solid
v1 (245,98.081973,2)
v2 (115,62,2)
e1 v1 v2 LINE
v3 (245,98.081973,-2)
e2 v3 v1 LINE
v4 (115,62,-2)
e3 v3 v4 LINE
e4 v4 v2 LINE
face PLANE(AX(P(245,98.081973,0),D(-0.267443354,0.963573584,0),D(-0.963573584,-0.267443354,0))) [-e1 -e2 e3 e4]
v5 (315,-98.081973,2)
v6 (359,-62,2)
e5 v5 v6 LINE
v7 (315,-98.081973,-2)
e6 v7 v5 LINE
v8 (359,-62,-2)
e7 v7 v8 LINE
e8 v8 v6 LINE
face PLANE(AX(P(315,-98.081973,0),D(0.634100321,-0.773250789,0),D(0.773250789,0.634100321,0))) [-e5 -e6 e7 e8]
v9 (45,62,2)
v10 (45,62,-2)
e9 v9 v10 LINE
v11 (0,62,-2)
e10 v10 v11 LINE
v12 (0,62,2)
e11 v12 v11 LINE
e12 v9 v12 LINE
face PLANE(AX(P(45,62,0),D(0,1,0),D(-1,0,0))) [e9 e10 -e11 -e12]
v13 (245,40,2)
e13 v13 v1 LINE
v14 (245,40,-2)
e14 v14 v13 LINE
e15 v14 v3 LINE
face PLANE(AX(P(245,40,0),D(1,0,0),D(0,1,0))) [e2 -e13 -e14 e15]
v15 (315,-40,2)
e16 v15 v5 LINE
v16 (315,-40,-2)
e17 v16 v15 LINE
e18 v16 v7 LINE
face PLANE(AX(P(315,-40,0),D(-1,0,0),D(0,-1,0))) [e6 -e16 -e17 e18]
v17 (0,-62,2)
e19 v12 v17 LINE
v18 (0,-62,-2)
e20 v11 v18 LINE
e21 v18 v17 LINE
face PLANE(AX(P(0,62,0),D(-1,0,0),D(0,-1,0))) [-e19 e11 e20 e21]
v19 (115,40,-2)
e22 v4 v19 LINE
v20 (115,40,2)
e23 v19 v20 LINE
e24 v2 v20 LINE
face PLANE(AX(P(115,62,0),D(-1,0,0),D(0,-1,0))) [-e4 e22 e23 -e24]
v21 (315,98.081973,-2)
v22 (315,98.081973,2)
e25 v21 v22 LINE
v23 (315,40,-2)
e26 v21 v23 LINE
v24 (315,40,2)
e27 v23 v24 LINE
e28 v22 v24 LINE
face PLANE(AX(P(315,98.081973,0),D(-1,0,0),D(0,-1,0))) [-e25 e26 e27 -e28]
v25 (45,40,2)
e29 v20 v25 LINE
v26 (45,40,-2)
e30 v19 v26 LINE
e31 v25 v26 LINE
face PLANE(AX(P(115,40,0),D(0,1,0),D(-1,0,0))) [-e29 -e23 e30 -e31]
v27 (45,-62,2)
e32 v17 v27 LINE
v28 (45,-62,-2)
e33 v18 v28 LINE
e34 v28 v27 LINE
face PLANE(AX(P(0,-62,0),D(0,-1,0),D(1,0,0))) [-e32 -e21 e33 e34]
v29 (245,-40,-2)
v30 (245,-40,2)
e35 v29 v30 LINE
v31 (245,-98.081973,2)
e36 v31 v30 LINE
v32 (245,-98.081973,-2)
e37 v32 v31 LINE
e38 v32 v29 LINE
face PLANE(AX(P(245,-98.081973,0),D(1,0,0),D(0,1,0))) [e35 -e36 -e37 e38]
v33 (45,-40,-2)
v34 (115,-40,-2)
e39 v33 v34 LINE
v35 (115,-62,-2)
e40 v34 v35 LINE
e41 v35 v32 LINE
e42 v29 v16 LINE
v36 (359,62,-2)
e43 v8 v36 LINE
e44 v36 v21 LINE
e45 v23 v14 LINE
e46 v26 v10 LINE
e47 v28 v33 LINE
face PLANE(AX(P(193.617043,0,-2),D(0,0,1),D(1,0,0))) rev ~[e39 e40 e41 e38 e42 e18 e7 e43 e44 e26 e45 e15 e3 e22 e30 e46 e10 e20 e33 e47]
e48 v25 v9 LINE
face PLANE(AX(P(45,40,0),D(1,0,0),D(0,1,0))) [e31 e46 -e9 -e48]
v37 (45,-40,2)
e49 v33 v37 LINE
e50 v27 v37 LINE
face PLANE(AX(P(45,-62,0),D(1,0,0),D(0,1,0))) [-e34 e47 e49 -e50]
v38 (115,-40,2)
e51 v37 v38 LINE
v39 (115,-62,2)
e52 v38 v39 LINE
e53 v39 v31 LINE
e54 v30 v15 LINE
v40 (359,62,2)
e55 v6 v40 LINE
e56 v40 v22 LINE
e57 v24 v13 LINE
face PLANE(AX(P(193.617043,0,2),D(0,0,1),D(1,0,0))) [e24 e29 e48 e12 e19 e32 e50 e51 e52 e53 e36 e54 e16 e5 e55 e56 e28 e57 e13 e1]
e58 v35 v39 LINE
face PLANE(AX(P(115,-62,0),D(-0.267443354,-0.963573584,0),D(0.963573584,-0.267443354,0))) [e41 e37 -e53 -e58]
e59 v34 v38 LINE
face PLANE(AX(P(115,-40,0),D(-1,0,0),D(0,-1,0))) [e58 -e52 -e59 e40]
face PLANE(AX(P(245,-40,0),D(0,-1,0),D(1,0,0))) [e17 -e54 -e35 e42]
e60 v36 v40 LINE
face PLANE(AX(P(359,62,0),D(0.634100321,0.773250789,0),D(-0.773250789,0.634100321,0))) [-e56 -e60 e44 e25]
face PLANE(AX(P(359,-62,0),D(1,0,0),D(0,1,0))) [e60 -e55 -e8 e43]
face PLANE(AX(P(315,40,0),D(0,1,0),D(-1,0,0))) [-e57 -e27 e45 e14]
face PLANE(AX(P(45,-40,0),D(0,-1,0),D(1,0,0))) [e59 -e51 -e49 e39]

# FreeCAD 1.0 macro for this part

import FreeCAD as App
import Part
import Sketcher

doc = App.newDocument("Part")
body = doc.addObject("PartDesign::Body", "Body")

# Sketch on XY plane
sketch1 = doc.addObject("Sketcher::SketchObject", "Sketch")
body.addObject(sketch1)
sketch1.AttachmentSupport = (doc.XY_Plane, [""])
sketch1.MapMode = "FlatFace"
sketch1.addGeometry([
    Part.LineSegment(App.Vector(0, 62, 0), App.Vector(0, -62, 0)),  # 0
    Part.LineSegment(App.Vector(0, -62, 0), App.Vector(45, -62, 0)),  # 1
    Part.LineSegment(App.Vector(45, -62, 0), App.Vector(45, -40, 0)),  # 2
    Part.LineSegment(App.Vector(45, -40, 0), App.Vector(115, -40, 0)),  # 3
    Part.LineSegment(App.Vector(115, -40, 0), App.Vector(115, -62, 0)),  # 4
    Part.LineSegment(App.Vector(115, -62, 0), App.Vector(245, -98.081973, 0)),  # 5
    Part.LineSegment(App.Vector(245, -98.081973, 0), App.Vector(245, -40, 0)),  # 6
    Part.LineSegment(App.Vector(245, -40, 0), App.Vector(315, -40, 0)),  # 7
    Part.LineSegment(App.Vector(315, -40, 0), App.Vector(315, -98.081973, 0)),  # 8
    Part.LineSegment(App.Vector(315, -98.081973, 0), App.Vector(359, -62, 0)),  # 9
    Part.LineSegment(App.Vector(359, -62, 0), App.Vector(359, 62, 0)),  # 10
    Part.LineSegment(App.Vector(359, 62, 0), App.Vector(315, 98.081973, 0)),  # 11
    Part.LineSegment(App.Vector(315, 98.081973, 0), App.Vector(315, 40, 0)),  # 12
    Part.LineSegment(App.Vector(315, 40, 0), App.Vector(245, 40, 0)),  # 13
    Part.LineSegment(App.Vector(245, 40, 0), App.Vector(245, 98.081973, 0)),  # 14
    Part.LineSegment(App.Vector(245, 98.081973, 0), App.Vector(115, 62, 0)),  # 15
    Part.LineSegment(App.Vector(115, 62, 0), App.Vector(115, 40, 0)),  # 16
    Part.LineSegment(App.Vector(115, 40, 0), App.Vector(45, 40, 0)),  # 17
    Part.LineSegment(App.Vector(45, 40, 0), App.Vector(45, 62, 0)),  # 18
    Part.LineSegment(App.Vector(45, 62, 0), App.Vector(0, 62, 0)),  # 19
], False)
sketch1.addConstraint([
    Sketcher.Constraint("Coincident", 0, 2, 1, 1),
    Sketcher.Constraint("Coincident", 1, 2, 2, 1),
    Sketcher.Constraint("Coincident", 2, 2, 3, 1),
    Sketcher.Constraint("Coincident", 3, 2, 4, 1),
    Sketcher.Constraint("Coincident", 4, 2, 5, 1),
    Sketcher.Constraint("Coincident", 5, 2, 6, 1),
    Sketcher.Constraint("Coincident", 6, 2, 7, 1),
    Sketcher.Constraint("Coincident", 7, 2, 8, 1),
    Sketcher.Constraint("Coincident", 8, 2, 9, 1),
    Sketcher.Constraint("Coincident", 9, 2, 10, 1),
    Sketcher.Constraint("Coincident", 10, 2, 11, 1),
    Sketcher.Constraint("Coincident", 11, 2, 12, 1),
    Sketcher.Constraint("Coincident", 12, 2, 13, 1),
    Sketcher.Constraint("Coincident", 13, 2, 14, 1),
    Sketcher.Constraint("Coincident", 14, 2, 15, 1),
    Sketcher.Constraint("Coincident", 15, 2, 16, 1),
    Sketcher.Constraint("Coincident", 16, 2, 17, 1),
    Sketcher.Constraint("Coincident", 17, 2, 18, 1),
    Sketcher.Constraint("Coincident", 18, 2, 19, 1),
    Sketcher.Constraint("Coincident", 19, 2, 0, 1),
    Sketcher.Constraint("Vertical", 0),
    Sketcher.Constraint("Horizontal", 1),
    Sketcher.Constraint("Vertical", 2),
    Sketcher.Constraint("Horizontal", 3),
    Sketcher.Constraint("Vertical", 4),
    Sketcher.Constraint("Vertical", 6),
    Sketcher.Constraint("Horizontal", 7),
    Sketcher.Constraint("Vertical", 8),
    Sketcher.Constraint("Vertical", 10),
    Sketcher.Constraint("Vertical", 12),
    Sketcher.Constraint("Horizontal", 13),
    Sketcher.Constraint("Vertical", 14),
    Sketcher.Constraint("Vertical", 16),
    Sketcher.Constraint("Horizontal", 17),
    Sketcher.Constraint("Vertical", 18),
    Sketcher.Constraint("Horizontal", 19),
    Sketcher.Constraint("Symmetric", 0, 2, 19, 2, -1, 1),
    Sketcher.Constraint("Symmetric", 8, 2, 11, 2, -1),
    Sketcher.Constraint("Symmetric", 6, 2, 13, 2, -1),
    Sketcher.Constraint("Symmetric", 4, 2, 15, 2, -1),
    Sketcher.Constraint("Symmetric", 2, 2, 17, 2, -1),
    Sketcher.Constraint("Horizontal", 1, 2, 4, 2),
    Sketcher.Constraint("Horizontal", 3, 2, 6, 2),
    Sketcher.Constraint("Horizontal", 5, 2, 8, 2),
    Sketcher.Constraint("Horizontal", 4, 2, 9, 2),
    Sketcher.Constraint("Horizontal", 11, 2, 14, 2),
    Sketcher.Constraint("Horizontal", 10, 2, 15, 2),
    Sketcher.Constraint("Equal", 3, 7),
    Sketcher.Constraint("DistanceX", 1, 1, 1, 2, 45.0),
    Sketcher.Constraint("DistanceX", 3, 1, 3, 2, 70.0),
    Sketcher.Constraint("DistanceY", 0, 2, 0, 1, 124.0),
    Sketcher.Constraint("DistanceY", 2, 1, 2, 2, 22.0),
    Sketcher.Constraint("DistanceX", -1, 1, 5, 2, 245.0),
    Sketcher.Constraint("DistanceX", -1, 1, 9, 2, 359.0),
    Sketcher.Constraint("Distance", 5, 134.91445),
])
pad1 = doc.addObject("PartDesign::Pad", "Pad")
body.addObject(pad1)
pad1.Profile = sketch1
pad1.Length = 4
pad1.Midplane = True

doc.recompute()
